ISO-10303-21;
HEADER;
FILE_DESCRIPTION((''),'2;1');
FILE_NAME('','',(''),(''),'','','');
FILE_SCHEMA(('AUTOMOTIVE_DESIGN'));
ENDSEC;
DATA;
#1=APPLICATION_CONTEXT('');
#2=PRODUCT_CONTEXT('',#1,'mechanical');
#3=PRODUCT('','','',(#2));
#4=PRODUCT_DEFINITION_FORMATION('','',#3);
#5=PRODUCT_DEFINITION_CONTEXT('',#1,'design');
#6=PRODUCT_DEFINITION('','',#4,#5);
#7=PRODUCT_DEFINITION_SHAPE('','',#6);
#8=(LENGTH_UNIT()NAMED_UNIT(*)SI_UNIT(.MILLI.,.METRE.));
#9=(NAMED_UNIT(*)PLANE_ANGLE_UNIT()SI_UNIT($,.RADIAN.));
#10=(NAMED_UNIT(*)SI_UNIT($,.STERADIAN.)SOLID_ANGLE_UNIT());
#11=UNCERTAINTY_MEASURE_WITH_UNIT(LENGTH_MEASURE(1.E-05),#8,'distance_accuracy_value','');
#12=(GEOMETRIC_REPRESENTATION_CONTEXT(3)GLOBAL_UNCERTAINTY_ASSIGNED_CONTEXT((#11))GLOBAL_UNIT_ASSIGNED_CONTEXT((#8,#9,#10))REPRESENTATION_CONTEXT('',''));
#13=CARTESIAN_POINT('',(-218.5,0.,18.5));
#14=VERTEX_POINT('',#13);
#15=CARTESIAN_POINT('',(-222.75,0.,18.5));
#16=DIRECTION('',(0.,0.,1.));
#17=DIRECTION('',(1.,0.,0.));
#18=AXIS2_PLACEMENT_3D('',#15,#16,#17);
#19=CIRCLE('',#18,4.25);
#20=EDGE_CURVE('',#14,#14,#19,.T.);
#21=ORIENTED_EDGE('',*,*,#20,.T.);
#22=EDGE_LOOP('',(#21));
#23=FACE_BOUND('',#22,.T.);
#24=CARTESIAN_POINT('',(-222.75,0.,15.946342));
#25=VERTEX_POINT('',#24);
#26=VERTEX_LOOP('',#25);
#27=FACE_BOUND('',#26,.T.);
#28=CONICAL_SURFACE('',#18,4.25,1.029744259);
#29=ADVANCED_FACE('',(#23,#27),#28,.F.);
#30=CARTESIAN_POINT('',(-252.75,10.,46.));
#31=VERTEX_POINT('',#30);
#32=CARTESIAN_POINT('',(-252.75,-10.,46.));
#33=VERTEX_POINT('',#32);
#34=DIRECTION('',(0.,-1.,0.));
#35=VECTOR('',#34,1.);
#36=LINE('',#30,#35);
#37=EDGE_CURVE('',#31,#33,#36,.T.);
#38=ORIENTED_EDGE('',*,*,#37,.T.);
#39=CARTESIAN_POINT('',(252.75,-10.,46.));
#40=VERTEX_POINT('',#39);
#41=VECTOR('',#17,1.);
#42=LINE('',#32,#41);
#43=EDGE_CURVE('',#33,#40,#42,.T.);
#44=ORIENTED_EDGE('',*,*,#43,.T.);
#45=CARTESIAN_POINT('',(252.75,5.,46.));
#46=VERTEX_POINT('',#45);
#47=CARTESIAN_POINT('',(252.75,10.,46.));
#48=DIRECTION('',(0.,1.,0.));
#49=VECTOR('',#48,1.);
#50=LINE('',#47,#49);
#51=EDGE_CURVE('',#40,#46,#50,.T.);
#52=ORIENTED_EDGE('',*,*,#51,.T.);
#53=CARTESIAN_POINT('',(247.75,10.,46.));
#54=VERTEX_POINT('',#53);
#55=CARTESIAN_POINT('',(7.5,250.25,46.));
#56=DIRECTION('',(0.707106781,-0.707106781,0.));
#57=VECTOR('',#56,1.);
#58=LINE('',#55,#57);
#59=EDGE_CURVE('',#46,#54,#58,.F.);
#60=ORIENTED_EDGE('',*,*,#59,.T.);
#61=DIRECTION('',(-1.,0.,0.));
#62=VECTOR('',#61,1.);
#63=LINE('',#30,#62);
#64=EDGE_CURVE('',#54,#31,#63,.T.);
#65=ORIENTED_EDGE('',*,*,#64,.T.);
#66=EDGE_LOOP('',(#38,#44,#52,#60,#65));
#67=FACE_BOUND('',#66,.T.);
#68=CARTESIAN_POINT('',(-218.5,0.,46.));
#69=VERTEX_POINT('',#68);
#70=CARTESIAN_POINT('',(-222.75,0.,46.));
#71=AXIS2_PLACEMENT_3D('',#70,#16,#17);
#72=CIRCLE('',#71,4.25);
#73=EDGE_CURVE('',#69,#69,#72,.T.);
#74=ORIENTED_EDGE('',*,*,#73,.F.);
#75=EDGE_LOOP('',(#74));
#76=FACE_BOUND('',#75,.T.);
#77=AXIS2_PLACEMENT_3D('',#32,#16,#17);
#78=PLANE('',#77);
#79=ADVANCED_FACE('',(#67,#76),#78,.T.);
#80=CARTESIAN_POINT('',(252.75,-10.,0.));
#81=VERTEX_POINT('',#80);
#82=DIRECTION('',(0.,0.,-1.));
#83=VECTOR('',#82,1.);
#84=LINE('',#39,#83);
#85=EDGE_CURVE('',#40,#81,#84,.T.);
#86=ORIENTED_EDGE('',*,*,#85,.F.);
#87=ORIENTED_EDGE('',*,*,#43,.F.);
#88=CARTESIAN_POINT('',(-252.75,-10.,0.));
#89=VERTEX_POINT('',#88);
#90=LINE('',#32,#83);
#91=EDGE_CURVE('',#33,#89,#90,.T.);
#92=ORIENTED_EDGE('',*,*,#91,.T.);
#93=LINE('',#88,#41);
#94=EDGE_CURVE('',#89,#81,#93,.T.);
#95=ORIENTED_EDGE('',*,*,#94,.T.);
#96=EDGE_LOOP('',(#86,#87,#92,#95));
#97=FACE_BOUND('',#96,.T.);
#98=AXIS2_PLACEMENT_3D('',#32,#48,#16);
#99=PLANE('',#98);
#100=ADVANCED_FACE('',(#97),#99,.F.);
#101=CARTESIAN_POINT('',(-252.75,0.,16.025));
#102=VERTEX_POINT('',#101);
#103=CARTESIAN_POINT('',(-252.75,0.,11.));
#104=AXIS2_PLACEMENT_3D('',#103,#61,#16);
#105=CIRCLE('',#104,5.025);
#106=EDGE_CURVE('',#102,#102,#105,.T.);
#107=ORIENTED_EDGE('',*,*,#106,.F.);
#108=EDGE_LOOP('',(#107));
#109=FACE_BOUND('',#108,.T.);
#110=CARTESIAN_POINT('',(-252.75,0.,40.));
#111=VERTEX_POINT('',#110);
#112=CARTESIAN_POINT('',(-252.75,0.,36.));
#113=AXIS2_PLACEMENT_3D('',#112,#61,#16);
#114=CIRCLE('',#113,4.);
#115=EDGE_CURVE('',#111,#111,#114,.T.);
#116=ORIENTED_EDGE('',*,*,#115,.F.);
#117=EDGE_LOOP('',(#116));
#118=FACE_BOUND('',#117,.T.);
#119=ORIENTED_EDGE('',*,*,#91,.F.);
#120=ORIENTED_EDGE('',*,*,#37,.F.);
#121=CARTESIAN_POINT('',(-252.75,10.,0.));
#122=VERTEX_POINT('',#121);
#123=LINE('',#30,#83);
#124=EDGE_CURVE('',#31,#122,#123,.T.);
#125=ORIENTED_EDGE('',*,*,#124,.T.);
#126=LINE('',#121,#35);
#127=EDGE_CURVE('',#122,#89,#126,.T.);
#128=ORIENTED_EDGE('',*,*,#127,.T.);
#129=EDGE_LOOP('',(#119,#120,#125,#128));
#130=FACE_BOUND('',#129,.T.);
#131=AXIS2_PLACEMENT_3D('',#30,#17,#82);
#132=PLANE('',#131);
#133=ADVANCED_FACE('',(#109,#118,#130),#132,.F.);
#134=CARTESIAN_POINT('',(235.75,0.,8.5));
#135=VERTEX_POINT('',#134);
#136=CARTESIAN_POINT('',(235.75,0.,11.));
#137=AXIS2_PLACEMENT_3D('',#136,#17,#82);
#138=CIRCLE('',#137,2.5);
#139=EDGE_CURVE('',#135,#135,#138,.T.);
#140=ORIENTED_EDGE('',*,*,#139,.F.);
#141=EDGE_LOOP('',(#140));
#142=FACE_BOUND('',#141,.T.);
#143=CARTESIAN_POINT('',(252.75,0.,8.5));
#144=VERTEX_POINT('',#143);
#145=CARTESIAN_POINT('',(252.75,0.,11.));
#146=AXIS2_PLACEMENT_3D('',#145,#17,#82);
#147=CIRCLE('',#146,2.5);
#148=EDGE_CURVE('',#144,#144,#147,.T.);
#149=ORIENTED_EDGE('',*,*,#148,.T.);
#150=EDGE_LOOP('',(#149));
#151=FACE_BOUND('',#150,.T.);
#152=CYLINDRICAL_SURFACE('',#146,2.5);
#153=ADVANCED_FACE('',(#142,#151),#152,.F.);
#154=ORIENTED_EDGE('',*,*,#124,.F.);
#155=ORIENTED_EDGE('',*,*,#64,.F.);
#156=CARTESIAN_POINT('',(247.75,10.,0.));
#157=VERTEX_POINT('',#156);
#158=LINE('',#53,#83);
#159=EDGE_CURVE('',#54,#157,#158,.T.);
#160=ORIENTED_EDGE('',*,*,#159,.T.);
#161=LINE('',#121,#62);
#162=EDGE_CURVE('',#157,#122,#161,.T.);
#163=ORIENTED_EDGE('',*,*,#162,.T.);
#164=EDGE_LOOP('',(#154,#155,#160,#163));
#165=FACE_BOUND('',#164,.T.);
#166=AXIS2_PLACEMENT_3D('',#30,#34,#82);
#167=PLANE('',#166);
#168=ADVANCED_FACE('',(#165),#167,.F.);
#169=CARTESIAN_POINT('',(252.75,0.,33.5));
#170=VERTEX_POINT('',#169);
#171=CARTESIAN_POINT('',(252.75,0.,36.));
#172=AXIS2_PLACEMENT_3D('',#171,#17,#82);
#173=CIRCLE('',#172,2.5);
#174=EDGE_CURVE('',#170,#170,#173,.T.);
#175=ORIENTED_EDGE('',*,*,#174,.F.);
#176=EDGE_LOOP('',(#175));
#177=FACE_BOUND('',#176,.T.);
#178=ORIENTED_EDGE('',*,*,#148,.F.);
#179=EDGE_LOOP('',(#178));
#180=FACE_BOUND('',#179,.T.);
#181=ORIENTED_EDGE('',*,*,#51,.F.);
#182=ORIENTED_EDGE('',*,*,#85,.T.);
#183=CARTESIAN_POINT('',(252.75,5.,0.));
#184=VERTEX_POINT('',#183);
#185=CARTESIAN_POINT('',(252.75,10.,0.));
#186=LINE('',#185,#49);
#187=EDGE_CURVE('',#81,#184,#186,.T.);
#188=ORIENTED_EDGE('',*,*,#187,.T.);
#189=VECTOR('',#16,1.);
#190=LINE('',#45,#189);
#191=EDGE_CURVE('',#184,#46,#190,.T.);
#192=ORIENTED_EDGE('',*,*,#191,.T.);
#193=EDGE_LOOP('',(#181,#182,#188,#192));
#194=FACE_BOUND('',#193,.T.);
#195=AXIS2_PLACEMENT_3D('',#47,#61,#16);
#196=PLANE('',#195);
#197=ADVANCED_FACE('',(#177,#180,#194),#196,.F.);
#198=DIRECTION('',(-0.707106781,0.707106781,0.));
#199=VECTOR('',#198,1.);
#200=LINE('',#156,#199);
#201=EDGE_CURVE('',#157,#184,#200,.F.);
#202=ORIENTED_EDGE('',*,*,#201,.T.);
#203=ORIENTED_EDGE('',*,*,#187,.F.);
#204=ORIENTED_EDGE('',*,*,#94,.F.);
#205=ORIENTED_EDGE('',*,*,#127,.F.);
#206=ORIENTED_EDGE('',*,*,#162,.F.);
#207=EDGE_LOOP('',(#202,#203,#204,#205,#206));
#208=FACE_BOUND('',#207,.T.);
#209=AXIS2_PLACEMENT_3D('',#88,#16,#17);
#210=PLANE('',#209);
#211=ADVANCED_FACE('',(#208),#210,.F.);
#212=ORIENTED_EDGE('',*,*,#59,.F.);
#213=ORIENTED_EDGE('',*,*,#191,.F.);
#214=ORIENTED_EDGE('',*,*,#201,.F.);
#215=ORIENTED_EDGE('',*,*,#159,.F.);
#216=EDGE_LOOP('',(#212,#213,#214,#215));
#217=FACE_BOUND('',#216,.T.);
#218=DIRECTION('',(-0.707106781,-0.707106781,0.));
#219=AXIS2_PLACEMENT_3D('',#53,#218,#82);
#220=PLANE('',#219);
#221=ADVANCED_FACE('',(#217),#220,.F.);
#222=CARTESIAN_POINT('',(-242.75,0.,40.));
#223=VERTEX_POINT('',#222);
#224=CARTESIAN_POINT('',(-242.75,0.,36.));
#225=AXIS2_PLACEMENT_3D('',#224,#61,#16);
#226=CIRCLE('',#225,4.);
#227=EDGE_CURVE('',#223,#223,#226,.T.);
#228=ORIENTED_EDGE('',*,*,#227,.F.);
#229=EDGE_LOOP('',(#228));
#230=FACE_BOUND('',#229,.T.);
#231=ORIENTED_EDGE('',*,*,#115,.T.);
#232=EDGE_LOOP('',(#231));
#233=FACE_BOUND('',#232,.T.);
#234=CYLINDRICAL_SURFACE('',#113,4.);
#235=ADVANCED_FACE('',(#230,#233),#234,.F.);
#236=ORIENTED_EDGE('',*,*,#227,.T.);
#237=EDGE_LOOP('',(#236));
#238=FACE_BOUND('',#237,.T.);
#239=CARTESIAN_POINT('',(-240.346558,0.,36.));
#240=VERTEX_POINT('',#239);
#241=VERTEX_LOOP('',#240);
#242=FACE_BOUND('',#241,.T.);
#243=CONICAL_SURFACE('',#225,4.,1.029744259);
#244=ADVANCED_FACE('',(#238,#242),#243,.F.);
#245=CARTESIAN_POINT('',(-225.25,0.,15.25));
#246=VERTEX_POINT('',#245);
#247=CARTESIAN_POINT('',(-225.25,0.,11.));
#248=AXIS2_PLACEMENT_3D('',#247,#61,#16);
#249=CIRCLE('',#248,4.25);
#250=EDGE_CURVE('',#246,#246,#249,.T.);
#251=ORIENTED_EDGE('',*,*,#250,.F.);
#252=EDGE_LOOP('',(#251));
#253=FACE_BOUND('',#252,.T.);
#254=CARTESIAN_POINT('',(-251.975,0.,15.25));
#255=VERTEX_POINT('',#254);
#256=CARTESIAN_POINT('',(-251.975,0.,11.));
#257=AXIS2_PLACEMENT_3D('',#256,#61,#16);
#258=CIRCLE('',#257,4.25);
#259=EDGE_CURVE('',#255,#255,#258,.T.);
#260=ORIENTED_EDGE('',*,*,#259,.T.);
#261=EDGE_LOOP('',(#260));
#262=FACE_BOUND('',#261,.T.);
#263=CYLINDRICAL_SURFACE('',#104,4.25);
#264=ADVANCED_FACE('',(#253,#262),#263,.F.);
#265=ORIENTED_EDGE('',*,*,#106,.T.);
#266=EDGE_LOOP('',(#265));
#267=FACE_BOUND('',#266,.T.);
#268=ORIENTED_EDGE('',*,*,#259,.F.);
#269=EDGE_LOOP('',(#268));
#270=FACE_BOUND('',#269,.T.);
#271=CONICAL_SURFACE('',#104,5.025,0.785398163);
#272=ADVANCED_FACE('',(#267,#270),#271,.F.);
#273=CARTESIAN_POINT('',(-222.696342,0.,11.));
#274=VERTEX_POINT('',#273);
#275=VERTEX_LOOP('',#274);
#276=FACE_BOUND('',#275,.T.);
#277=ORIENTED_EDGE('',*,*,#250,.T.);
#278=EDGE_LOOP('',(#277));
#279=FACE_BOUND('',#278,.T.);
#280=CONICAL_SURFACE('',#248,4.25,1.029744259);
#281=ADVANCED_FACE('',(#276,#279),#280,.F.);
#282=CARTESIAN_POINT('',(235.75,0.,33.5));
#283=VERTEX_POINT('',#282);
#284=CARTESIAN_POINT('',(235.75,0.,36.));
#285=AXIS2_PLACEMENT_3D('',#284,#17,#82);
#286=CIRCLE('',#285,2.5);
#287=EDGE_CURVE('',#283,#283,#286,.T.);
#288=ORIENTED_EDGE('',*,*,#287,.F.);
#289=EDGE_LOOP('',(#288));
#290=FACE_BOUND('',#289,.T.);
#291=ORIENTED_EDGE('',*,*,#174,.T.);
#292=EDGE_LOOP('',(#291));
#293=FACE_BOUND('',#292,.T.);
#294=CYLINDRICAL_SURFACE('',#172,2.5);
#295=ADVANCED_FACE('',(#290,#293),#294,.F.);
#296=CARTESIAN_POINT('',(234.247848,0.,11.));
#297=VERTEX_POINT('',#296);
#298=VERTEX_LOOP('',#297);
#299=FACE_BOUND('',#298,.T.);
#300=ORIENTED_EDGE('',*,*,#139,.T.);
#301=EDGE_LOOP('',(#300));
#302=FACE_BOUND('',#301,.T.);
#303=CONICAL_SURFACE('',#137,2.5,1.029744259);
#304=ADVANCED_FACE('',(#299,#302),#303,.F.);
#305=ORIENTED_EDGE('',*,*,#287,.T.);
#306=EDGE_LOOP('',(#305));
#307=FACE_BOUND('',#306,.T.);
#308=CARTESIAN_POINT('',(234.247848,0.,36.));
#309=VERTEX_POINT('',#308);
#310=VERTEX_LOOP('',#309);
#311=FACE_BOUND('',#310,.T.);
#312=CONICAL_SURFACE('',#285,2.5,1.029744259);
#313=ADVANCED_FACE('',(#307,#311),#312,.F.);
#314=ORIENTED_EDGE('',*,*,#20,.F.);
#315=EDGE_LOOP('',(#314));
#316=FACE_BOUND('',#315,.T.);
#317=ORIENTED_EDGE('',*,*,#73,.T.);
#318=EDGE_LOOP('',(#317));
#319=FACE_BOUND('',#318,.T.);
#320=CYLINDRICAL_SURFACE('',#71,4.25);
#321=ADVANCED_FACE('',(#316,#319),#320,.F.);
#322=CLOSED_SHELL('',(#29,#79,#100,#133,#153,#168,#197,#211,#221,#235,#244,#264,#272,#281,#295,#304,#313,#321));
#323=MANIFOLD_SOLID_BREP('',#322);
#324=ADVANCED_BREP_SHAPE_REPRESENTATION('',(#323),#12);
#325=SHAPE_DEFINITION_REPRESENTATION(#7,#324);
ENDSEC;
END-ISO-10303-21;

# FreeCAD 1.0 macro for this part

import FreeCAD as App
import Part
import Sketcher
from FreeCAD import Vector
Q = App.Units.Quantity


def edges_at(feature, points):
    """Names of the edges that pass closest to the given points."""
    edges = feature.Shape.Edges
    near = lambda p: min(range(len(edges)), key=lambda i: edges[i].distToShape(Part.Vertex(*p))[0])
    return sorted({f"Edge{near(p) + 1}" for p in points})

doc = App.newDocument("Part")
params = doc.addObject("Spreadsheet::Sheet", "Params")
for row, (alias, value) in enumerate([
    ("sketch1_height", "20 mm"),
    ("sketch1_width", "505.5 mm"),
    ("pad1_length", "46 mm"),
    ("sketch2_diameter", "8.5 mm"),
    ("hole_diameter", "8.5 mm"),
    ("hole_depth", "27.5 mm"),
    ("hole_csink_diameter", "10.05 mm"),
    ("sketch3_diameter", "8 mm"),
    ("hole2_diameter", "8 mm"),
    ("hole2_depth", "10 mm"),
    ("sketch4_diameter", "8.5 mm"),
    ("hole3_diameter", "8.5 mm"),
    ("hole3_depth", "27.5 mm"),
    ("sketch5_diameter", "5 mm"),
    ("hole4_diameter", "5 mm"),
    ("hole4_depth", "17 mm"),
    ("chamfer_size", "5 mm"),
], start=1):
    params.set(f"A{row}", alias)
    params.set(f"B{row}", "=" + value)
    params.setAlias(f"B{row}", alias)

body = doc.addObject("PartDesign::Body", "Body")

# Sketch on XY plane
sketch1 = body.newObject("Sketcher::SketchObject", "Sketch")
sketch1.AttachmentSupport = (doc.getObject("XY_Plane"), [""])
sketch1.MapMode = "FlatFace"
sketch1.addGeometry(Part.LineSegment(Vector(-253, 10, 0), Vector(-253, -10, 0)), False)
sketch1.addGeometry(Part.LineSegment(Vector(-253, -10, 0), Vector(253, -10, 0)), False)
sketch1.addGeometry(Part.LineSegment(Vector(253, -10, 0), Vector(253, 10, 0)), False)
sketch1.addGeometry(Part.LineSegment(Vector(253, 10, 0), Vector(-253, 10, 0)), False)
sketch1.addConstraint(Sketcher.Constraint("Coincident", 0, 2, 1, 1))
sketch1.addConstraint(Sketcher.Constraint("Coincident", 1, 2, 2, 1))
sketch1.addConstraint(Sketcher.Constraint("Coincident", 2, 2, 3, 1))
sketch1.addConstraint(Sketcher.Constraint("Coincident", 3, 2, 0, 1))
sketch1.addConstraint(Sketcher.Constraint("Vertical", 0))
sketch1.addConstraint(Sketcher.Constraint("Horizontal", 1))
sketch1.addConstraint(Sketcher.Constraint("Vertical", 2))
sketch1.addConstraint(Sketcher.Constraint("Horizontal", 3))
sketch1.addConstraint(Sketcher.Constraint("Symmetric", 0, 2, 2, 2, -1, 1))
sketch1.addConstraint(Sketcher.Constraint("DistanceY", 0, 2, 0, 1, Q("20 mm")))
sketch1.addConstraint(Sketcher.Constraint("DistanceX", 1, 1, 1, 2, Q("505.5 mm")))
sketch1.setExpression("Constraints[9]", "Params.sketch1_height")
sketch1.setExpression("Constraints[10]", "Params.sketch1_width")
pad1 = body.newObject("PartDesign::Pad", "Pad")
pad1.Profile = sketch1
pad1.setExpression("Length", "Params.pad1_length")

# Sketch on YZ plane
sketch2 = body.newObject("Sketcher::SketchObject", "Sketch001")
sketch2.AttachmentSupport = (doc.getObject("YZ_Plane"), [""])
sketch2.MapMode = "FlatFace"
sketch2.AttachmentOffset = App.Placement(Vector(0, 0, -252.75), App.Rotation())
sketch2.addGeometry(Part.Circle(Vector(0, 11, 0), Vector(0, 0, 1), 4.2), False)
sketch2.addConstraint(Sketcher.Constraint("PointOnObject", 0, 3, -2))
sketch2.addConstraint(Sketcher.Constraint("Diameter", 0, Q("8.5 mm")))
sketch2.addConstraint(Sketcher.Constraint("DistanceY", -1, 1, 0, 3, Q("11 mm")))
sketch2.setExpression("Constraints[1]", "Params.sketch2_diameter")
doc.recompute()
hole = body.newObject("PartDesign::Hole", "Hole")
hole.Profile = sketch2
hole.ThreadType = "None"
hole.setExpression("Diameter", "Params.hole_diameter")
hole.DepthType = "Dimension"
hole.setExpression("Depth", "Params.hole_depth")
hole.DrillPoint = "Angled"
hole.DrillPointAngle = 118
hole.HoleCutType = "Countersink"
hole.setExpression("HoleCutDiameter", "Params.hole_csink_diameter")
hole.HoleCutCountersinkAngle = 90
hole.Reversed = True

# Sketch on YZ plane
sketch3 = body.newObject("Sketcher::SketchObject", "Sketch002")
sketch3.AttachmentSupport = (doc.getObject("YZ_Plane"), [""])
sketch3.MapMode = "FlatFace"
sketch3.AttachmentOffset = App.Placement(Vector(0, 0, -252.75), App.Rotation())
sketch3.addGeometry(Part.Circle(Vector(0, 36, 0), Vector(0, 0, 1), 4), False)
sketch3.addConstraint(Sketcher.Constraint("PointOnObject", 0, 3, -2))
sketch3.addConstraint(Sketcher.Constraint("Diameter", 0, Q("8 mm")))
sketch3.addConstraint(Sketcher.Constraint("DistanceY", -1, 1, 0, 3, Q("36 mm")))
sketch3.setExpression("Constraints[1]", "Params.sketch3_diameter")
doc.recompute()
hole2 = body.newObject("PartDesign::Hole", "Hole001")
hole2.Profile = sketch3
hole2.ThreadType = "None"
hole2.setExpression("Diameter", "Params.hole2_diameter")
hole2.DepthType = "Dimension"
hole2.setExpression("Depth", "Params.hole2_depth")
hole2.DrillPoint = "Angled"
hole2.DrillPointAngle = 118
hole2.Reversed = True

# Sketch on XY plane
sketch4 = body.newObject("Sketcher::SketchObject", "Sketch003")
sketch4.AttachmentSupport = (doc.getObject("XY_Plane"), [""])
sketch4.MapMode = "FlatFace"
sketch4.AttachmentOffset = App.Placement(Vector(0, 0, 46), App.Rotation())
sketch4.addGeometry(Part.Circle(Vector(-222.8, 0, 0), Vector(0, 0, 1), 4.2), False)
sketch4.addConstraint(Sketcher.Constraint("PointOnObject", 0, 3, -1))
sketch4.addConstraint(Sketcher.Constraint("Diameter", 0, Q("8.5 mm")))
sketch4.addConstraint(Sketcher.Constraint("DistanceX", 0, 3, -1, 1, Q("222.75 mm")))
sketch4.setExpression("Constraints[1]", "Params.sketch4_diameter")
doc.recompute()
hole3 = body.newObject("PartDesign::Hole", "Hole002")
hole3.Profile = sketch4
hole3.ThreadType = "None"
hole3.setExpression("Diameter", "Params.hole3_diameter")
hole3.DepthType = "Dimension"
hole3.setExpression("Depth", "Params.hole3_depth")
hole3.DrillPoint = "Angled"
hole3.DrillPointAngle = 118

# Sketch on YZ plane
sketch5 = body.newObject("Sketcher::SketchObject", "Sketch004")
sketch5.AttachmentSupport = (doc.getObject("YZ_Plane"), [""])
sketch5.MapMode = "FlatFace"
sketch5.AttachmentOffset = App.Placement(Vector(0, 0, 252.75), App.Rotation())
sketch5.addGeometry(Part.Circle(Vector(0, 11, 0), Vector(0, 0, 1), 2.5), False)
sketch5.addGeometry(Part.Circle(Vector(0, 36, 0), Vector(0, 0, 1), 2.5), False)
sketch5.addConstraint(Sketcher.Constraint("Equal", 0, 1))
sketch5.addConstraint(Sketcher.Constraint("PointOnObject", 0, 3, -2))
sketch5.addConstraint(Sketcher.Constraint("PointOnObject", 1, 3, -2))
sketch5.addConstraint(Sketcher.Constraint("Diameter", 0, Q("5 mm")))
sketch5.addConstraint(Sketcher.Constraint("DistanceY", -1, 1, 0, 3, Q("11 mm")))
sketch5.addConstraint(Sketcher.Constraint("DistanceY", -1, 1, 1, 3, Q("36 mm")))
sketch5.setExpression("Constraints[3]", "Params.sketch5_diameter")
doc.recompute()
hole4 = body.newObject("PartDesign::Hole", "Hole003")
hole4.Profile = sketch5
hole4.ThreadType = "None"
hole4.setExpression("Diameter", "Params.hole4_diameter")
hole4.DepthType = "Dimension"
hole4.setExpression("Depth", "Params.hole4_depth")
hole4.DrillPoint = "Angled"
hole4.DrillPointAngle = 118
doc.recompute()

chamfer = body.newObject("PartDesign::Chamfer", "Chamfer")
chamfer.Base = (hole4, edges_at(hole4, [(252.75, 10, 23)]))
chamfer.setExpression("Size", "Params.chamfer_size")

doc.recompute()
